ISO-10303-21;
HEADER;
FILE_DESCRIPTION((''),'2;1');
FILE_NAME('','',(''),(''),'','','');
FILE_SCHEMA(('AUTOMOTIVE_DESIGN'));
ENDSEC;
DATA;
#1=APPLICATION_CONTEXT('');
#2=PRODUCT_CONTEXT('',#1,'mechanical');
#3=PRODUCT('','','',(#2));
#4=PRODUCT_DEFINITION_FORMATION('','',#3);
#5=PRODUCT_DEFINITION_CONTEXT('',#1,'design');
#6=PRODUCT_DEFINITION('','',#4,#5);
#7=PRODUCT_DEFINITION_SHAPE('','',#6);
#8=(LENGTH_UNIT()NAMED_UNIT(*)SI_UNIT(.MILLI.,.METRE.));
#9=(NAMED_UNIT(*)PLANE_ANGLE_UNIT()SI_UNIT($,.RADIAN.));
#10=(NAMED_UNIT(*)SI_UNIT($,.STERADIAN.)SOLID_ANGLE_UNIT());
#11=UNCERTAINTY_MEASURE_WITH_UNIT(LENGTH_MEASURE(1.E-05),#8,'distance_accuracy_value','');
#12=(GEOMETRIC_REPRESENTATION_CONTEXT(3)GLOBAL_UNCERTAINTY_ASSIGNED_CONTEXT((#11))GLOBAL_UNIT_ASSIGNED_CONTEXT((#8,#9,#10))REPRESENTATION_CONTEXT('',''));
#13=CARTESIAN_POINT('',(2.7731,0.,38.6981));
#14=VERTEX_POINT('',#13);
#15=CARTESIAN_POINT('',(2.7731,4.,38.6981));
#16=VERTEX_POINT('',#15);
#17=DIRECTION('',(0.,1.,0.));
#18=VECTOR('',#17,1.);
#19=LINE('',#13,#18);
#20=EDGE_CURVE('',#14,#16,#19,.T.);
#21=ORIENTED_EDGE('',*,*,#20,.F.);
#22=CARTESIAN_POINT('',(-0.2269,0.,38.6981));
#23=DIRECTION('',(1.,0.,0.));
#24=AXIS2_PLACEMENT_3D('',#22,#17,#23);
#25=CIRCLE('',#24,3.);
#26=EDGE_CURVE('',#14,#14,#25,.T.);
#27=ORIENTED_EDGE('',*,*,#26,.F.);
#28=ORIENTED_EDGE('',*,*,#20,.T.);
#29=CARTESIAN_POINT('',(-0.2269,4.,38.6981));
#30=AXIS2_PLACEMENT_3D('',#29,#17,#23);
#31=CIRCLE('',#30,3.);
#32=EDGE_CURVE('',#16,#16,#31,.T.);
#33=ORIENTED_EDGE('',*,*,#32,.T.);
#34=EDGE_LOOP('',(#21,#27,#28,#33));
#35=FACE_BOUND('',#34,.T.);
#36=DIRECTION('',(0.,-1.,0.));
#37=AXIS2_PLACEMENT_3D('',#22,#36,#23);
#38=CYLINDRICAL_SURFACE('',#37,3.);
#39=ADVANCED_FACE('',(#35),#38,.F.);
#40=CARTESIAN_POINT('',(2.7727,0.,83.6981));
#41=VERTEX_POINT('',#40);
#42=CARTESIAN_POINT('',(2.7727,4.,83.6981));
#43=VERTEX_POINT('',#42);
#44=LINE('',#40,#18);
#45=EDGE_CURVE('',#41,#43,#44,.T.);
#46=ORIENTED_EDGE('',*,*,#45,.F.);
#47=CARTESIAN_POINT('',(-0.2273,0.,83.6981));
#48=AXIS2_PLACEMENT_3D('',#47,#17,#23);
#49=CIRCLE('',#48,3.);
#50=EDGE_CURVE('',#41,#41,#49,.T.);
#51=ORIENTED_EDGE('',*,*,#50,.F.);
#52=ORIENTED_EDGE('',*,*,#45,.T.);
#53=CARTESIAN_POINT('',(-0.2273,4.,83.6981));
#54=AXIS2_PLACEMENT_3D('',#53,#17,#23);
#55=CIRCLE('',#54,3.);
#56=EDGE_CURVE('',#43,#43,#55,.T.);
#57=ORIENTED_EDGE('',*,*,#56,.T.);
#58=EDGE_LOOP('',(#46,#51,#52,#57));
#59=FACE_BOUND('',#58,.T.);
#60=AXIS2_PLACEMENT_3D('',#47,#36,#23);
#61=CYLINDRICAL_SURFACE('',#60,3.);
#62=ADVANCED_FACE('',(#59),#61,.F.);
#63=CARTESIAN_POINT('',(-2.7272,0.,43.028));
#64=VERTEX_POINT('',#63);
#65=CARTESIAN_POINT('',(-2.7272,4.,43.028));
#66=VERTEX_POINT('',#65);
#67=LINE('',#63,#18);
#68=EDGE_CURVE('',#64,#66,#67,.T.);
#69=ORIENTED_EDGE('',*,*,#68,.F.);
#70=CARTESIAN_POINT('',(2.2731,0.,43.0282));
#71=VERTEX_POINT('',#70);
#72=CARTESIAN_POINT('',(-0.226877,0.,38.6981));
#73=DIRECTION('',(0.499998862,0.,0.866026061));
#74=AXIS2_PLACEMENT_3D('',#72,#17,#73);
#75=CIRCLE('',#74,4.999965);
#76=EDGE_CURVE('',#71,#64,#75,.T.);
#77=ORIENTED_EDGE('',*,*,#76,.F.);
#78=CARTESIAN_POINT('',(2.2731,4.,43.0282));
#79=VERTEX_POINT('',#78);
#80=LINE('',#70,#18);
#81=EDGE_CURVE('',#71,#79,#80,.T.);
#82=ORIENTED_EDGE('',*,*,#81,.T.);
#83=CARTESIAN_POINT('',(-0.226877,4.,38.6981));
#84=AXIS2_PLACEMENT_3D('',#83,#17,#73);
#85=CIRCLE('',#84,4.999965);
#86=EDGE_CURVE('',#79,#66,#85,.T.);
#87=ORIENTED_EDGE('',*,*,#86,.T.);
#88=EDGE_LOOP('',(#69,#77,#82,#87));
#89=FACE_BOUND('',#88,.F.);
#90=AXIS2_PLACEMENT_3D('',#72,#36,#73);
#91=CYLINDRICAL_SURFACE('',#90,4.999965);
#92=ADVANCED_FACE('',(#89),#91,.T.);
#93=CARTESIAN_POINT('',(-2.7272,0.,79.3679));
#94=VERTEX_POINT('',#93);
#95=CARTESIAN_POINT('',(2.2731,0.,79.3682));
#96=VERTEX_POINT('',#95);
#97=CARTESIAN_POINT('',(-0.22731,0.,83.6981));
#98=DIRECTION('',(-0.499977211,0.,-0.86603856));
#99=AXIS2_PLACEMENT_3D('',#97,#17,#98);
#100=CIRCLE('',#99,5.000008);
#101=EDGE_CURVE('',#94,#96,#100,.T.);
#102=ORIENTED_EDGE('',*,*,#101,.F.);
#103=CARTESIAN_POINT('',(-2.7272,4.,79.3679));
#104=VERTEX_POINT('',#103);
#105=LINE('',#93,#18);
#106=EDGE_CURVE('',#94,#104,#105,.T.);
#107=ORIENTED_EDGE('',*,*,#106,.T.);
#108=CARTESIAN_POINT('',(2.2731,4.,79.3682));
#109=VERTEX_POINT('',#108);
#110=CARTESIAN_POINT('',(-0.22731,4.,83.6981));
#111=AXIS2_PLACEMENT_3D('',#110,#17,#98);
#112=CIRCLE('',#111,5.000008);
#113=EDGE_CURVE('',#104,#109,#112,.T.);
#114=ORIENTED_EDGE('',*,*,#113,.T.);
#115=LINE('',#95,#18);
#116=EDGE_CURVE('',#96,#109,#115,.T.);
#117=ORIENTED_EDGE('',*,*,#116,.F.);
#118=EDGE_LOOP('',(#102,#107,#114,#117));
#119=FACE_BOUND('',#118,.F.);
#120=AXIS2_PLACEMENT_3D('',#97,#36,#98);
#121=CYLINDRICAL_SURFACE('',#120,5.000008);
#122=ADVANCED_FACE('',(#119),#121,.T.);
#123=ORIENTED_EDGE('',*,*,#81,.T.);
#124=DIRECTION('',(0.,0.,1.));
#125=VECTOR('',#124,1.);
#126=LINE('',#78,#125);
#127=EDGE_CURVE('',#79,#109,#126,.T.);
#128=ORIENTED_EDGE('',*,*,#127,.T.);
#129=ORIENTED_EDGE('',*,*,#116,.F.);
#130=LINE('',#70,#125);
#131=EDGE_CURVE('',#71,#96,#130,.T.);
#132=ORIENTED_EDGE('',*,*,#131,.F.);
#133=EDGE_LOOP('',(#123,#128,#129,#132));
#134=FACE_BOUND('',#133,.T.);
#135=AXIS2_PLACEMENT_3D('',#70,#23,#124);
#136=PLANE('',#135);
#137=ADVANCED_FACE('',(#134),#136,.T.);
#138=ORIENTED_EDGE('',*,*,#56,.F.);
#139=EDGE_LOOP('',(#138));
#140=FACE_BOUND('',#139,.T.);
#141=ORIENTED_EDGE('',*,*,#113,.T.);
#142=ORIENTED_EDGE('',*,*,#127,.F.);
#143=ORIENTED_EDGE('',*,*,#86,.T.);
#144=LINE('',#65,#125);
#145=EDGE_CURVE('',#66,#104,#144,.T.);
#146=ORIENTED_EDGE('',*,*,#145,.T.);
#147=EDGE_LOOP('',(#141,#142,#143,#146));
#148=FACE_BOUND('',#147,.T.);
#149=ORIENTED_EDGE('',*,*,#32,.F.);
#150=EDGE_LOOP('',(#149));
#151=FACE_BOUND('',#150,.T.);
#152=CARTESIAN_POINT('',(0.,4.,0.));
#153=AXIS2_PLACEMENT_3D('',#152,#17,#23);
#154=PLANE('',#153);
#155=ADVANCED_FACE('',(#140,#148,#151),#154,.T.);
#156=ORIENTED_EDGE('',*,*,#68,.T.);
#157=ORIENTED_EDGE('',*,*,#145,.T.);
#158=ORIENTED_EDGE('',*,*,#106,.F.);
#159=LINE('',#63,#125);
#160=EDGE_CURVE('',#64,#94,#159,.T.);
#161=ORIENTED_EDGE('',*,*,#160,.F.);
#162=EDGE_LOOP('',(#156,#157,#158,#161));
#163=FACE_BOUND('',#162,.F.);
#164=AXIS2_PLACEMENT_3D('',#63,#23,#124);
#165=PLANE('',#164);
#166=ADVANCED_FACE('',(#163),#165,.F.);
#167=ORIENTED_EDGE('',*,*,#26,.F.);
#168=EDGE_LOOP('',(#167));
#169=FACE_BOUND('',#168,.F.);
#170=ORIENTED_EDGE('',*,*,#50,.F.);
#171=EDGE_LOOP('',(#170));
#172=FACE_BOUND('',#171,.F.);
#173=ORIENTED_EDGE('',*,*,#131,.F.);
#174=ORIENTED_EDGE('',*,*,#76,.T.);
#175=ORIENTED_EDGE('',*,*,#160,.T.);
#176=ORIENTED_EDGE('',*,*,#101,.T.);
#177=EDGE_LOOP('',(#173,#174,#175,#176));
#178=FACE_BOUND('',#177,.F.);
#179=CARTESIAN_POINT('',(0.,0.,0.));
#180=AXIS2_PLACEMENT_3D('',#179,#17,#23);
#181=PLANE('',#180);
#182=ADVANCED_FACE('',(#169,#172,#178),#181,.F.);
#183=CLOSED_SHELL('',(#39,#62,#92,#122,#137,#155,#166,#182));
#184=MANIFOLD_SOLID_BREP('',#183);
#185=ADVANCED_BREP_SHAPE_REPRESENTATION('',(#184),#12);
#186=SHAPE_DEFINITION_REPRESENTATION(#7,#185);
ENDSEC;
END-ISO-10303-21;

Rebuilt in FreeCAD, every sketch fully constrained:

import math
import FreeCAD as App
import Part
import Sketcher
from FreeCAD import Vector

doc = App.newDocument("Part")
body = doc.addObject("PartDesign::Body", "Body")

sketch1 = body.newObject("Sketcher::SketchObject", "Sketch")
sketch1.AttachmentSupport = (doc.getObject("XZ_Plane"), [""])
sketch1.MapMode = "FlatFace"
sketch1.addGeometry([
    Part.ArcOfCircle(Part.Circle(Vector(-0.2, 38.7, 0), Vector(0, 0, 1), 5), math.radians(120), math.radians(420)),
    Part.LineSegment(Vector(-2.7, 43, 0), Vector(-2.7, 79.4, 0)),
    Part.ArcOfCircle(Part.Circle(Vector(-0.2, 83.7, 0), Vector(0, 0, 1), 5), math.radians(-60), math.radians(240)),
    Part.LineSegment(Vector(2.3, 79.4, 0), Vector(2.3, 43, 0)),
    Part.Circle(Vector(-0.2, 83.7, 0), Vector(0, 0, 1), 3),
    Part.Circle(Vector(-0.2, 38.7, 0), Vector(0, 0, 1), 3),
], False)
sketch1.addConstraint([
    Sketcher.Constraint("Coincident", 0, 1, 1, 1),
    Sketcher.Constraint("Coincident", 1, 2, 2, 2),
    Sketcher.Constraint("Coincident", 2, 1, 3, 1),
    Sketcher.Constraint("Coincident", 3, 2, 0, 2),
    Sketcher.Constraint("Vertical", 1),
    Sketcher.Constraint("Vertical", 3),
    Sketcher.Constraint("Coincident", 4, 3, 2, 3),
    Sketcher.Constraint("Coincident", 5, 3, 0, 3),
    Sketcher.Constraint("Equal", 0, 2),
    Sketcher.Constraint("Equal", 4, 5),
    Sketcher.Constraint("Horizontal", 0, 1, 3, 2),
    Sketcher.Constraint("Equal", 1, 3),
    Sketcher.Constraint("Diameter", 4, 6.0),
    Sketcher.Constraint("Radius", 0, 5.0),
    Sketcher.Constraint("DistanceY", 0, 3, 2, 3, 45.0),
    Sketcher.Constraint("DistanceY", 1, 1, 1, 2, 36.34),
    Sketcher.Constraint("DistanceX", 0, 3, -1, 1, 0.227),
    Sketcher.Constraint("DistanceY", -1, 1, 0, 3, 38.698),
])
pad1 = body.newObject("PartDesign::Pad", "Pad")
pad1.Profile = sketch1
pad1.Length = 4
pad1.Reversed = True

doc.recompute()
